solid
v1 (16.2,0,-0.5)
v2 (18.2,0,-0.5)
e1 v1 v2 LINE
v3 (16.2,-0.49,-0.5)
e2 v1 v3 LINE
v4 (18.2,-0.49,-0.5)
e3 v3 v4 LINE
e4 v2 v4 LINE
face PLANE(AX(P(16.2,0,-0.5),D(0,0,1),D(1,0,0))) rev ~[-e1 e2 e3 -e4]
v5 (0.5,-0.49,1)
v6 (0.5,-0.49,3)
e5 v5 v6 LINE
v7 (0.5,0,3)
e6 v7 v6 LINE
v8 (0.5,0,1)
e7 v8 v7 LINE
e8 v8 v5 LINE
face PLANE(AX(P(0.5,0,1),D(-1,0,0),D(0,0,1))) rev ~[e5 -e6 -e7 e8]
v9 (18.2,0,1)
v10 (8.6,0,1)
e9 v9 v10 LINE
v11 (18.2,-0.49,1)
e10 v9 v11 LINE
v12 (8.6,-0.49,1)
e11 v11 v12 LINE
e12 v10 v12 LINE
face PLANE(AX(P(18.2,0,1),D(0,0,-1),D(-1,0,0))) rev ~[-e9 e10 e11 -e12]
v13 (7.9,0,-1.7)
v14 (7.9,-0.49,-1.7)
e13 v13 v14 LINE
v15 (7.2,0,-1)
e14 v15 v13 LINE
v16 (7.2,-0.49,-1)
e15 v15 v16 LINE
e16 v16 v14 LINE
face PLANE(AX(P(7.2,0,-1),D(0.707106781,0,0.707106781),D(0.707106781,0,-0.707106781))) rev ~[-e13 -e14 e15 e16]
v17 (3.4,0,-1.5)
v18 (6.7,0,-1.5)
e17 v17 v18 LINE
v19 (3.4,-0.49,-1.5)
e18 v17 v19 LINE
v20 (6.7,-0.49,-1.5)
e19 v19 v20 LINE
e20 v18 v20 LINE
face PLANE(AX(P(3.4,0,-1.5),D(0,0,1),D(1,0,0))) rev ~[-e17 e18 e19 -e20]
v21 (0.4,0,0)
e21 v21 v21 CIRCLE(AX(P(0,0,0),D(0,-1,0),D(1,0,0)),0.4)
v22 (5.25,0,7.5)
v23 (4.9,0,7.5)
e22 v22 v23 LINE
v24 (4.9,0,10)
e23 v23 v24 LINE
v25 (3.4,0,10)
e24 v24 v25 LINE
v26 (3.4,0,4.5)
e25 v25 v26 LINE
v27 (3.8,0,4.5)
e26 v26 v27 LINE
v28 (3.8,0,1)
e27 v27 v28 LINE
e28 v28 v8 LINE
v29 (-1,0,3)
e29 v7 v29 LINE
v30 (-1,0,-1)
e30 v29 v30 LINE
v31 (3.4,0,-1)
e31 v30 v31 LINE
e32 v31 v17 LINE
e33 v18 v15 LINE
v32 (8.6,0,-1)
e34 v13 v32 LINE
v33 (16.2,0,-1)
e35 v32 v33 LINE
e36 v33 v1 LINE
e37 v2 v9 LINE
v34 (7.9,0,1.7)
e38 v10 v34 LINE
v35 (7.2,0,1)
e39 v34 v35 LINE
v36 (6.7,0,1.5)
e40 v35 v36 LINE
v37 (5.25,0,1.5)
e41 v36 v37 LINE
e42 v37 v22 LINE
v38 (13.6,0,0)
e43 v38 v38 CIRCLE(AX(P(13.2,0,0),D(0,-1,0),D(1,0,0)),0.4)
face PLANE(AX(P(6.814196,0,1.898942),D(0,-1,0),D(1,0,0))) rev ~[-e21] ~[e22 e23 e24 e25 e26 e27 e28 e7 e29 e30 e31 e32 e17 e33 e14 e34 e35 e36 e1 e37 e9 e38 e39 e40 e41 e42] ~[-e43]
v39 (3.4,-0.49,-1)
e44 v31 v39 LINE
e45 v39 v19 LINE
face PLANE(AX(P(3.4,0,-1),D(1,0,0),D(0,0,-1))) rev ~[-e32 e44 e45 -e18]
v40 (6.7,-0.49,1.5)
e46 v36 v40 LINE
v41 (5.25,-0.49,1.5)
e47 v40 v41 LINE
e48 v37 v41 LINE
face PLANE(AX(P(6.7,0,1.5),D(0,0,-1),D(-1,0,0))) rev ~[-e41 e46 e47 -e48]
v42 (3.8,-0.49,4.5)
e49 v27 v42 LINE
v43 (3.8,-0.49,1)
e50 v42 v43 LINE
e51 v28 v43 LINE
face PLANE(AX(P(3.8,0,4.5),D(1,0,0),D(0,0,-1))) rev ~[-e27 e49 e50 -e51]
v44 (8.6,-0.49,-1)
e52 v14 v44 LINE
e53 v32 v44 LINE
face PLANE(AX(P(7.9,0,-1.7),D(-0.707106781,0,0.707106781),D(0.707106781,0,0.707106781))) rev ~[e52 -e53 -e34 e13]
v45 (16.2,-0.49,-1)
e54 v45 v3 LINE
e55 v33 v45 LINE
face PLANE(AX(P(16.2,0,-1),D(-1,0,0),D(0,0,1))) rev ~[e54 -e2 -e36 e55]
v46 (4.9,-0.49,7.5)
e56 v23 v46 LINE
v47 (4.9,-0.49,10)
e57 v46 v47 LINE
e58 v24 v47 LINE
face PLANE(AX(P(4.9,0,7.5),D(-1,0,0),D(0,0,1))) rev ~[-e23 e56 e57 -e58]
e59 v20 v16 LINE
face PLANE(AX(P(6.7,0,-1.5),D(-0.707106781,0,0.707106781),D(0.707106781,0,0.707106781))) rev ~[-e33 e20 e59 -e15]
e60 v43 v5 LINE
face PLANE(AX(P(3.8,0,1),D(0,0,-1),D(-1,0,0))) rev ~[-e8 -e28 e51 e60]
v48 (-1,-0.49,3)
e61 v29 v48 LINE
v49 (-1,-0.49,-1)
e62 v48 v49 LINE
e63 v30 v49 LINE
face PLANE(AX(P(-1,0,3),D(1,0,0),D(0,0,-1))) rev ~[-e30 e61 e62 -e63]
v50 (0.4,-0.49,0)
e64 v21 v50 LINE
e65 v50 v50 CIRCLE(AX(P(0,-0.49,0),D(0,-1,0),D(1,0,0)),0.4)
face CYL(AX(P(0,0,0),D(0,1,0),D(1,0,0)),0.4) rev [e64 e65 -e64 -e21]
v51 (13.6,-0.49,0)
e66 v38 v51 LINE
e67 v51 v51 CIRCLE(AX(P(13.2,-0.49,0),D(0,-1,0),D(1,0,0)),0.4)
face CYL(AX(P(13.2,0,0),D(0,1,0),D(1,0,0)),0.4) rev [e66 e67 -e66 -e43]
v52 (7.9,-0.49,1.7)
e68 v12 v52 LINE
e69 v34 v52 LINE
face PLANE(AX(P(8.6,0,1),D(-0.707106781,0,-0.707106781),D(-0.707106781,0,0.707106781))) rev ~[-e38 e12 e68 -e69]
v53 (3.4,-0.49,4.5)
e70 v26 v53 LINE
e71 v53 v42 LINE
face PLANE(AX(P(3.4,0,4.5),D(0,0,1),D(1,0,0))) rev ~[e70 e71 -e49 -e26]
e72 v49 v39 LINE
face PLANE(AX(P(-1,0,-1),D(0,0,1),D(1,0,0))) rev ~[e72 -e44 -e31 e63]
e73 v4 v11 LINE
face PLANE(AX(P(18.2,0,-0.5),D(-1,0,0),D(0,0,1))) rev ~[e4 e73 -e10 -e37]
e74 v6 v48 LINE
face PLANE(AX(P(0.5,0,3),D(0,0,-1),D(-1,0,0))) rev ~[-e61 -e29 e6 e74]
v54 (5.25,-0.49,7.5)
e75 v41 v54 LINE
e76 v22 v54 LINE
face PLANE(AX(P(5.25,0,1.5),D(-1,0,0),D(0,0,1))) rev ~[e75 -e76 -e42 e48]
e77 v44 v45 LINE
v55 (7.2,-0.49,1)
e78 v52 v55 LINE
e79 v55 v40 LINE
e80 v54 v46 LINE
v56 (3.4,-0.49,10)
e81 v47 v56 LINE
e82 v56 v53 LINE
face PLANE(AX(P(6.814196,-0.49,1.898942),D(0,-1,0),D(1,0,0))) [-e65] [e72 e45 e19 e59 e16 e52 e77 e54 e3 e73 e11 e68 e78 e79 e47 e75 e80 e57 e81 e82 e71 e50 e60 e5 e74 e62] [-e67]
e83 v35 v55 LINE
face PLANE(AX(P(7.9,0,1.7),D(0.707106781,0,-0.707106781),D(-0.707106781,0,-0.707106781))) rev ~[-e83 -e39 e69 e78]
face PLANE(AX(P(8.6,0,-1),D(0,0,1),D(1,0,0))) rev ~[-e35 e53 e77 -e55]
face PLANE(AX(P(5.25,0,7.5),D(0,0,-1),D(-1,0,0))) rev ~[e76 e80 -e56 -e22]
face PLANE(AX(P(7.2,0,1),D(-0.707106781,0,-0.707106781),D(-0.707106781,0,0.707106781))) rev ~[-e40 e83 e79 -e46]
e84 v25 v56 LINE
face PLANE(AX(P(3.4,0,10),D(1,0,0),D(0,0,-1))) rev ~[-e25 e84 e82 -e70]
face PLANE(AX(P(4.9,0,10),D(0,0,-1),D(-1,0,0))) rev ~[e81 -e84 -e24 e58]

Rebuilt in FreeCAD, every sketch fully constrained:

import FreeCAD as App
import Part
import Sketcher
from FreeCAD import Vector


def add_polygon(sketch, points):
    """Adds a closed chain of lines whose ends are joined by coincident constraints."""
    first, n = sketch.GeometryCount, len(points)
    for a, b in zip(points, points[1:] + points[:1]):
        sketch.addGeometry(Part.LineSegment(App.Vector(*a, 0), App.Vector(*b, 0)), False)
    for i in range(n):
        sketch.addConstraint(Sketcher.Constraint("Coincident", first + i, 2, first + (i + 1) % n, 1))

doc = App.newDocument("Part")
body = doc.addObject("PartDesign::Body", "Body")

sketch1 = body.newObject("Sketcher::SketchObject", "Sketch")
sketch1.AttachmentSupport = (doc.getObject("XZ_Plane"), [""])
sketch1.MapMode = "FlatFace"
add_polygon(sketch1, [(0.5, 3), (-1, 3), (-1, -1), (3.4, -1), (3.4, -1.5), (6.7, -1.5), (7.2, -1), (7.9, -1.7), (8.6, -1), (16.2, -1), (16.2, -0.5), (18.2, -0.5), (18.2, 1), (8.6, 1), (7.9, 1.7), (7.2, 1), (6.7, 1.5), (5.25, 1.5), (5.25, 7.5), (4.9, 7.5), (4.9, 10), (3.4, 10), (3.4, 4.5), (3.8, 4.5), (3.8, 1), (0.5, 1)])
sketch1.addGeometry(Part.Circle(Vector(13.2, 0, 0), Vector(0, 0, 1), 0.4), False)
sketch1.addGeometry(Part.Circle(Vector(0, 0, 0), Vector(0, 0, 1), 0.4), False)
sketch1.addConstraint([
    Sketcher.Constraint("Horizontal", 0),
    Sketcher.Constraint("Vertical", 1),
    Sketcher.Constraint("Horizontal", 2),
    Sketcher.Constraint("Vertical", 3),
    Sketcher.Constraint("Horizontal", 4),
    Sketcher.Constraint("Horizontal", 8),
    Sketcher.Constraint("Vertical", 9),
    Sketcher.Constraint("Horizontal", 10),
    Sketcher.Constraint("Vertical", 11),
    Sketcher.Constraint("Horizontal", 12),
    Sketcher.Constraint("Horizontal", 16),
    Sketcher.Constraint("Vertical", 17),
    Sketcher.Constraint("Horizontal", 18),
    Sketcher.Constraint("Vertical", 19),
    Sketcher.Constraint("Horizontal", 20),
    Sketcher.Constraint("Vertical", 21),
    Sketcher.Constraint("Horizontal", 22),
    Sketcher.Constraint("Vertical", 23),
    Sketcher.Constraint("Horizontal", 24),
    Sketcher.Constraint("Vertical", 25),
    Sketcher.Constraint("Coincident", 27, 3, -1, 1),
    Sketcher.Constraint("Equal", 26, 27),
    Sketcher.Constraint("Symmetric", 7, 2, 12, 2, -1),
    Sketcher.Constraint("Symmetric", 6, 2, 13, 2, -1),
    Sketcher.Constraint("Symmetric", 5, 2, 14, 2, -1),
    Sketcher.Constraint("Symmetric", 4, 2, 15, 2, -1),
    Sketcher.Constraint("PointOnObject", 26, 3, -1),
    Sketcher.Constraint("Perpendicular", 5, 6),
    Sketcher.Constraint("Perpendicular", 6, 7),
    Sketcher.Constraint("Perpendicular", 7, 13),
    Sketcher.Constraint("Horizontal", 2, 2, 5, 2),
    Sketcher.Constraint("Horizontal", 5, 2, 7, 2),
    Sketcher.Constraint("Horizontal", 14, 2, 23, 2),
    Sketcher.Constraint("Vertical", 3, 2, 20, 2),
    Sketcher.Constraint("Equal", 0, 20),
    Sketcher.Constraint("Equal", 4, 24),
    Sketcher.Constraint("Equal", 3, 9),
    Sketcher.Constraint("Equal", 20, 11),
    Sketcher.Constraint("Equal", 10, 25),
    Sketcher.Constraint("Diameter", 26, 0.8),
    Sketcher.Constraint("DistanceX", 10, 1, 10, 2, 2.0),
    Sketcher.Constraint("DistanceY", 1, 2, 1, 1, 4.0),
    Sketcher.Constraint("DistanceY", 17, 1, 17, 2, 6.0),
    Sketcher.Constraint("DistanceX", 0, 2, 0, 1, 1.5),
    Sketcher.Constraint("DistanceX", 2, 1, 2, 2, 4.4),
    Sketcher.Constraint("DistanceX", 4, 1, 4, 2, 3.3),
    Sketcher.Constraint("DistanceX", 8, 1, 8, 2, 7.6),
    Sketcher.Constraint("DistanceY", 19, 1, 19, 2, 2.5),
    Sketcher.Constraint("DistanceY", 21, 2, 21, 1, 5.5),
    Sketcher.Constraint("DistanceX", 0, 2, -1, 1, 1.0),
    Sketcher.Constraint("DistanceX", 5, 2, 26, 3, 6.0),
    Sketcher.Constraint("DistanceX", 26, 3, 8, 2, 3.0),
    Sketcher.Constraint("DistanceX", 16, 2, 16, 1, 1.45),
])
pad1 = body.newObject("PartDesign::Pad", "Pad")
pad1.Profile = sketch1
pad1.Length = 0.49

doc.recompute()
